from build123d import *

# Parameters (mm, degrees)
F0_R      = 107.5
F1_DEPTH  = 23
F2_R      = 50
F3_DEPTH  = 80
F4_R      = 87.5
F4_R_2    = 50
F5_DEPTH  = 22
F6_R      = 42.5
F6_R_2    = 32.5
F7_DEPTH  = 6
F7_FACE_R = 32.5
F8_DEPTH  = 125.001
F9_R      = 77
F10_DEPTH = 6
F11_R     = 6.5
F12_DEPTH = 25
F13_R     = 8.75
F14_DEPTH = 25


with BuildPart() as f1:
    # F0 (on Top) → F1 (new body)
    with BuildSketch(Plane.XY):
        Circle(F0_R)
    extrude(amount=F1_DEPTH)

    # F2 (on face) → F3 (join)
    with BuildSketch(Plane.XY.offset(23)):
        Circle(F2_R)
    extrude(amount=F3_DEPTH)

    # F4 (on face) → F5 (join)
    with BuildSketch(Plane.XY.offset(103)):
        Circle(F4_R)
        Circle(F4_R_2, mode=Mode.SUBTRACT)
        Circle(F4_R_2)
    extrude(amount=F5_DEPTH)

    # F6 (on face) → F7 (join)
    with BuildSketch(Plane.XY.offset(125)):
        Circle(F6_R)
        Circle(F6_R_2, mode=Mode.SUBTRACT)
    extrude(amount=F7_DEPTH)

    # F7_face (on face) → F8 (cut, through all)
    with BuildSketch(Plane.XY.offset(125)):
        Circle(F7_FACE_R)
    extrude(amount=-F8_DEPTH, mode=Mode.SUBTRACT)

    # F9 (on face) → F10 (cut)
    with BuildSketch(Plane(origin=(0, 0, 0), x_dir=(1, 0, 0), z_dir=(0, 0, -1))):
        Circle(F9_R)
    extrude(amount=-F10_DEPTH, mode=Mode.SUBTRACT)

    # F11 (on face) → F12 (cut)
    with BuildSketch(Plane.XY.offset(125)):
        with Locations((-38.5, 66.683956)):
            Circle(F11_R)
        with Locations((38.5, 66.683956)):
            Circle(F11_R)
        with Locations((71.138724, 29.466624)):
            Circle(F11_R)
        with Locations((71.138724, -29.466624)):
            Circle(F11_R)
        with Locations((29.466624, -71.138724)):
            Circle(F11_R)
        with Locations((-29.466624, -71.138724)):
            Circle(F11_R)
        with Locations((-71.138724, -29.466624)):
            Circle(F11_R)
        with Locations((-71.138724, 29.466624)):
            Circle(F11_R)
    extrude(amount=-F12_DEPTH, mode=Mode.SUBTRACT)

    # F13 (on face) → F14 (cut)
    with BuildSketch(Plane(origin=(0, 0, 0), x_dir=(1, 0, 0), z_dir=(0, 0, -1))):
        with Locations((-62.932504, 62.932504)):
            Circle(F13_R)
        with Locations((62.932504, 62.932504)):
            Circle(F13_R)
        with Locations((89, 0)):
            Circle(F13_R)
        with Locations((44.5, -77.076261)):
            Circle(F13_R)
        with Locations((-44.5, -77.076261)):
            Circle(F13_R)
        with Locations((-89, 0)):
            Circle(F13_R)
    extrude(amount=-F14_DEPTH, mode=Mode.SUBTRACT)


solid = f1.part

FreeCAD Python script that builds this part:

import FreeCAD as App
import Part
import Sketcher

V = App.Vector

doc = App.newDocument("Part")
body = doc.addObject("PartDesign::Body", "Body")

sketch1 = body.newObject("Sketcher::SketchObject", "Sketch")
sketch1.AttachmentSupport = (doc.getObject("XY_Plane"), [""])
sketch1.MapMode = "FlatFace"
sketch1.addGeometry(Part.Circle(V(0, 0, 0), V(0, 0, 1), 108), False)
sketch1.addConstraint(Sketcher.Constraint("Coincident", 0, 3, -1, 1))
sketch1.addConstraint(Sketcher.Constraint("Diameter", 0, 215.0))
pad1 = body.newObject("PartDesign::Pad", "Pad")
pad1.Profile = sketch1
pad1.Length = 23

sketch2 = body.newObject("Sketcher::SketchObject", "Sketch001")
sketch2.AttachmentSupport = (doc.getObject("XY_Plane"), [""])
sketch2.MapMode = "FlatFace"
sketch2.AttachmentOffset = App.Placement(V(0, 0, 23), App.Rotation())
sketch2.addGeometry(Part.Circle(V(0, 0, 0), V(0, 0, 1), 50), False)
sketch2.addConstraint(Sketcher.Constraint("Coincident", 0, 3, -1, 1))
sketch2.addConstraint(Sketcher.Constraint("Diameter", 0, 100.0))
pad2 = body.newObject("PartDesign::Pad", "Pad001")
pad2.Profile = sketch2
pad2.Length = 80

sketch3 = body.newObject("Sketcher::SketchObject", "Sketch002")
sketch3.AttachmentSupport = (doc.getObject("XY_Plane"), [""])
sketch3.MapMode = "FlatFace"
sketch3.AttachmentOffset = App.Placement(V(0, 0, 103), App.Rotation())
sketch3.addGeometry(Part.Circle(V(0, 0, 0), V(0, 0, 1), 88), False)
sketch3.addConstraint(Sketcher.Constraint("Coincident", 0, 3, -1, 1))
sketch3.addConstraint(Sketcher.Constraint("Diameter", 0, 175.0))
pad3 = body.newObject("PartDesign::Pad", "Pad002")
pad3.Profile = sketch3
pad3.Length = 22

sketch4 = body.newObject("Sketcher::SketchObject", "Sketch003")
sketch4.AttachmentSupport = (doc.getObject("XY_Plane"), [""])
sketch4.MapMode = "FlatFace"
sketch4.AttachmentOffset = App.Placement(V(0, 0, 125), App.Rotation())
sketch4.addGeometry(Part.Circle(V(0, 0, 0), V(0, 0, 1), 42), False)
sketch4.addGeometry(Part.Circle(V(0, 0, 0), V(0, 0, 1), 32), False)
sketch4.addConstraint(Sketcher.Constraint("Coincident", 0, 3, -1, 1))
sketch4.addConstraint(Sketcher.Constraint("Coincident", 1, 3, -1, 1))
sketch4.addConstraint(Sketcher.Constraint("Diameter", 0, 85.0))
sketch4.addConstraint(Sketcher.Constraint("Diameter", 1, 65.0))
pad4 = body.newObject("PartDesign::Pad", "Pad003")
pad4.Profile = sketch4
pad4.Length = 6

sketch5 = body.newObject("Sketcher::SketchObject", "Sketch004")
sketch5.AttachmentSupport = (doc.getObject("XY_Plane"), [""])
sketch5.MapMode = "FlatFace"
sketch5.AttachmentOffset = App.Placement(V(0, 0, 125), App.Rotation())
sketch5.addGeometry(Part.Circle(V(0, 0, 0), V(0, 0, 1), 32), False)
sketch5.addConstraint(Sketcher.Constraint("Coincident", 0, 3, -1, 1))
sketch5.addConstraint(Sketcher.Constraint("Diameter", 0, 65.0))
pocket1 = body.newObject("PartDesign::Pocket", "Pocket")
pocket1.Profile = sketch5
pocket1.Type = "ThroughAll"

sketch6 = body.newObject("Sketcher::SketchObject", "Sketch005")
sketch6.AttachmentSupport = (doc.getObject("XY_Plane"), [""])
sketch6.MapMode = "FlatFace"
sketch6.addGeometry(Part.Circle(V(0, 0, 0), V(0, 0, 1), 77), False)
sketch6.addConstraint(Sketcher.Constraint("Coincident", 0, 3, -1, 1))
sketch6.addConstraint(Sketcher.Constraint("Diameter", 0, 154.0))
pocket2 = body.newObject("PartDesign::Pocket", "Pocket001")
pocket2.Profile = sketch6
pocket2.Length = 6
pocket2.Reversed = True

sketch7 = body.newObject("Sketcher::SketchObject", "Sketch006")
sketch7.AttachmentSupport = (doc.getObject("XY_Plane"), [""])
sketch7.MapMode = "FlatFace"
sketch7.AttachmentOffset = App.Placement(V(0, 0, 125), App.Rotation())
sketch7.addGeometry(Part.Circle(V(-38, 67, 0), V(0, 0, 1), 6), False)
sketch7.addGeometry(Part.Circle(V(38, 67, 0), V(0, 0, 1), 6), False)
sketch7.addGeometry(Part.Circle(V(71, 29, 0), V(0, 0, 1), 6), False)
sketch7.addGeometry(Part.Circle(V(71, -29, 0), V(0, 0, 1), 6), False)
sketch7.addGeometry(Part.Circle(V(29, -71, 0), V(0, 0, 1), 6), False)
sketch7.addGeometry(Part.Circle(V(-29, -71, 0), V(0, 0, 1), 6), False)
sketch7.addGeometry(Part.Circle(V(-71, -29, 0), V(0, 0, 1), 6), False)
sketch7.addGeometry(Part.Circle(V(-71, 29, 0), V(0, 0, 1), 6), False)
sketch7.addConstraint(Sketcher.Constraint("Equal", 0, 1))
sketch7.addConstraint(Sketcher.Constraint("Equal", 1, 2))
sketch7.addConstraint(Sketcher.Constraint("Equal", 2, 3))
sketch7.addConstraint(Sketcher.Constraint("Equal", 3, 4))
sketch7.addConstraint(Sketcher.Constraint("Equal", 4, 5))
sketch7.addConstraint(Sketcher.Constraint("Equal", 5, 6))
sketch7.addConstraint(Sketcher.Constraint("Equal", 6, 7))
sketch7.addConstraint(Sketcher.Constraint("Symmetric", 2, 3, 6, 3, -1, 1))
sketch7.addConstraint(Sketcher.Constraint("Symmetric", 3, 3, 7, 3, -1, 1))
sketch7.addConstraint(Sketcher.Constraint("Symmetric", 0, 3, 1, 3, -2))
sketch7.addConstraint(Sketcher.Constraint("Symmetric", 4, 3, 5, 3, -2))
sketch7.addConstraint(Sketcher.Constraint("Symmetric", 3, 3, 6, 3, -2))
sketch7.addConstraint(Sketcher.Constraint("Diameter", 0, 13.0))
sketch7.addConstraint(Sketcher.Constraint("DistanceX", 0, 3, 1, 3, 77.0))
sketch7.addConstraint(Sketcher.Constraint("DistanceX", 4, 3, 3, 3, 41.6721))
sketch7.addConstraint(Sketcher.Constraint("DistanceY", 4, 3, 3, 3, 41.6721))
sketch7.addConstraint(Sketcher.Constraint("DistanceY", 3, 3, 1, 3, 96.15058))
sketch7.addConstraint(Sketcher.Constraint("DistanceX", 6, 3, 3, 3, 142.277448))
sketch7.addConstraint(Sketcher.Constraint("DistanceY", -1, 1, 0, 3, 66.683956))
pocket3 = body.newObject("PartDesign::Pocket", "Pocket002")
pocket3.Profile = sketch7
pocket3.Length = 25

sketch8 = body.newObject("Sketcher::SketchObject", "Sketch007")
sketch8.AttachmentSupport = (doc.getObject("XY_Plane"), [""])
sketch8.MapMode = "FlatFace"
sketch8.addGeometry(Part.Circle(V(-63, -63, 0), V(0, 0, 1), 9), False)
sketch8.addGeometry(Part.Circle(V(63, -63, 0), V(0, 0, 1), 9), False)
sketch8.addGeometry(Part.Circle(V(89, 0, 0), V(0, 0, 1), 9), False)
sketch8.addGeometry(Part.Circle(V(44, 77, 0), V(0, 0, 1), 9), False)
sketch8.addGeometry(Part.Circle(V(-44, 77, 0), V(0, 0, 1), 9), False)
sketch8.addGeometry(Part.Circle(V(-89, 0, 0), V(0, 0, 1), 9), False)
sketch8.addConstraint(Sketcher.Constraint("Equal", 0, 1))
sketch8.addConstraint(Sketcher.Constraint("Equal", 1, 2))
sketch8.addConstraint(Sketcher.Constraint("Equal", 2, 3))
sketch8.addConstraint(Sketcher.Constraint("Equal", 3, 4))
sketch8.addConstraint(Sketcher.Constraint("Equal", 4, 5))
sketch8.addConstraint(Sketcher.Constraint("Symmetric", 2, 3, 5, 3, -1, 1))
sketch8.addConstraint(Sketcher.Constraint("Symmetric", 0, 3, 1, 3, -2))
sketch8.addConstraint(Sketcher.Constraint("Symmetric", 3, 3, 4, 3, -2))
sketch8.addConstraint(Sketcher.Constraint("PointOnObject", 2, 3, -1))
sketch8.addConstraint(Sketcher.Constraint("Diameter", 0, 17.5))
sketch8.addConstraint(Sketcher.Constraint("DistanceX", -1, 1, 2, 3, 89.0))
sketch8.addConstraint(Sketcher.Constraint("DistanceX", 4, 3, 3, 3, 89.0))
sketch8.addConstraint(Sketcher.Constraint("DistanceY", -1, 1, 3, 3, 77.076261))
sketch8.addConstraint(Sketcher.Constraint("DistanceX", 0, 3, 1, 3, 125.865008))
sketch8.addConstraint(Sketcher.Constraint("DistanceY", 0, 3, -1, 1, 62.932504))
pocket4 = body.newObject("PartDesign::Pocket", "Pocket003")
pocket4.Profile = sketch8
pocket4.Length = 25
pocket4.Reversed = True

doc.recompute()
